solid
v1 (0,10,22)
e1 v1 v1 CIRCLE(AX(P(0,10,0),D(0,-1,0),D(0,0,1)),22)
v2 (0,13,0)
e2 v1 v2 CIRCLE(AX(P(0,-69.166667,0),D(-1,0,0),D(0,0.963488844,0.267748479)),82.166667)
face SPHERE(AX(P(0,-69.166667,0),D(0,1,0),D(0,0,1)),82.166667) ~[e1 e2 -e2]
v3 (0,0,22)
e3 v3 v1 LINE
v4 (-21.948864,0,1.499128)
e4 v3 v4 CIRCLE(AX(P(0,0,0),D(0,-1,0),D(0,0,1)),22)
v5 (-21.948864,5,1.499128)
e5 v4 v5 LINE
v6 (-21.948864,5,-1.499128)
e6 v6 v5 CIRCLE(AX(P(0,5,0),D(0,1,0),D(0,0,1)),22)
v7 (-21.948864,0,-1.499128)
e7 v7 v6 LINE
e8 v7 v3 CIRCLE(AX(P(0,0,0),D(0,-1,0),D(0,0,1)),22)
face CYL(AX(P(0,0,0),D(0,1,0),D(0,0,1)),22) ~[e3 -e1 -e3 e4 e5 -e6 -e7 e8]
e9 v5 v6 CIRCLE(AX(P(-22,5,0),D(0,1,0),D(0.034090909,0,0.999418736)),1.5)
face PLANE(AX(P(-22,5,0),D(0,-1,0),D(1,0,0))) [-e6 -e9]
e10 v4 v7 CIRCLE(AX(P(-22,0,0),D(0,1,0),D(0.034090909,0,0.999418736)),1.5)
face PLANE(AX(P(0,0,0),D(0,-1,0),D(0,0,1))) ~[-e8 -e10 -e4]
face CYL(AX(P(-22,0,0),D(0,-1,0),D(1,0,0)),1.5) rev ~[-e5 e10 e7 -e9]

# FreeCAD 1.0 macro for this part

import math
import FreeCAD as App
import Part
import Sketcher

V = App.Vector

doc = App.newDocument("Part")
body = doc.addObject("PartDesign::Body", "Body")

# Sketch on XY plane
sketch1 = body.newObject("Sketcher::SketchObject", "Sketch")
sketch1.AttachmentSupport = (doc.getObject("XY_Plane"), [""])
sketch1.MapMode = "FlatFace"
sketch1.addGeometry([
    Part.LineSegment(V(-22, 0, 0), V(0, 0, 0)),
    Part.LineSegment(V(0, 0, 0), V(0, 13, 0)),
    Part.ArcOfCircle(Part.Circle(V(0, -69.166667, 0), V(0, 0, 1), 82.166667), math.radians(90), math.radians(105.530332)),
    Part.LineSegment(V(-22, 10, 0), V(-22, 0, 0)),
], False)
sketch1.addConstraint([
    Sketcher.Constraint("Coincident", 0, 2, 1, 1),
    Sketcher.Constraint("Coincident", 1, 2, 2, 1),
    Sketcher.Constraint("Coincident", 2, 2, 3, 1),
    Sketcher.Constraint("Coincident", 3, 2, 0, 1),
    Sketcher.Constraint("Horizontal", 0),
    Sketcher.Constraint("Vertical", 1),
    Sketcher.Constraint("Vertical", 3),
    Sketcher.Constraint("Coincident", 0, 2, -1, 1),
    Sketcher.Constraint("PointOnObject", 2, 3, -2),
    Sketcher.Constraint("DistanceX", 0, 1, 0, 2, 22.0),
    Sketcher.Constraint("DistanceY", 1, 1, 1, 2, 13.0),
    Sketcher.Constraint("DistanceY", 3, 2, 3, 1, 10.0),
])
revolution = body.newObject("PartDesign::Revolution", "Revolution")
revolution.Profile = sketch1
revolution.ReferenceAxis = (sketch1, ["V_Axis"])
revolution.Angle = 360

# Sketch on XZ plane
sketch2 = body.newObject("Sketcher::SketchObject", "Sketch001")
sketch2.AttachmentSupport = (doc.getObject("XZ_Plane"), [""])
sketch2.MapMode = "FlatFace"
sketch2.addGeometry(Part.Circle(V(-22, 0, 0), V(0, 0, 1), 1.5), False)
sketch2.addConstraint([
    Sketcher.Constraint("PointOnObject", 0, 3, -1),
    Sketcher.Constraint("Diameter", 0, 3.0),
    Sketcher.Constraint("DistanceX", 0, 3, -1, 1, 22.0),
])
pocket1 = body.newObject("PartDesign::Pocket", "Pocket")
pocket1.Profile = sketch2
pocket1.Length = 5

doc.recompute()
